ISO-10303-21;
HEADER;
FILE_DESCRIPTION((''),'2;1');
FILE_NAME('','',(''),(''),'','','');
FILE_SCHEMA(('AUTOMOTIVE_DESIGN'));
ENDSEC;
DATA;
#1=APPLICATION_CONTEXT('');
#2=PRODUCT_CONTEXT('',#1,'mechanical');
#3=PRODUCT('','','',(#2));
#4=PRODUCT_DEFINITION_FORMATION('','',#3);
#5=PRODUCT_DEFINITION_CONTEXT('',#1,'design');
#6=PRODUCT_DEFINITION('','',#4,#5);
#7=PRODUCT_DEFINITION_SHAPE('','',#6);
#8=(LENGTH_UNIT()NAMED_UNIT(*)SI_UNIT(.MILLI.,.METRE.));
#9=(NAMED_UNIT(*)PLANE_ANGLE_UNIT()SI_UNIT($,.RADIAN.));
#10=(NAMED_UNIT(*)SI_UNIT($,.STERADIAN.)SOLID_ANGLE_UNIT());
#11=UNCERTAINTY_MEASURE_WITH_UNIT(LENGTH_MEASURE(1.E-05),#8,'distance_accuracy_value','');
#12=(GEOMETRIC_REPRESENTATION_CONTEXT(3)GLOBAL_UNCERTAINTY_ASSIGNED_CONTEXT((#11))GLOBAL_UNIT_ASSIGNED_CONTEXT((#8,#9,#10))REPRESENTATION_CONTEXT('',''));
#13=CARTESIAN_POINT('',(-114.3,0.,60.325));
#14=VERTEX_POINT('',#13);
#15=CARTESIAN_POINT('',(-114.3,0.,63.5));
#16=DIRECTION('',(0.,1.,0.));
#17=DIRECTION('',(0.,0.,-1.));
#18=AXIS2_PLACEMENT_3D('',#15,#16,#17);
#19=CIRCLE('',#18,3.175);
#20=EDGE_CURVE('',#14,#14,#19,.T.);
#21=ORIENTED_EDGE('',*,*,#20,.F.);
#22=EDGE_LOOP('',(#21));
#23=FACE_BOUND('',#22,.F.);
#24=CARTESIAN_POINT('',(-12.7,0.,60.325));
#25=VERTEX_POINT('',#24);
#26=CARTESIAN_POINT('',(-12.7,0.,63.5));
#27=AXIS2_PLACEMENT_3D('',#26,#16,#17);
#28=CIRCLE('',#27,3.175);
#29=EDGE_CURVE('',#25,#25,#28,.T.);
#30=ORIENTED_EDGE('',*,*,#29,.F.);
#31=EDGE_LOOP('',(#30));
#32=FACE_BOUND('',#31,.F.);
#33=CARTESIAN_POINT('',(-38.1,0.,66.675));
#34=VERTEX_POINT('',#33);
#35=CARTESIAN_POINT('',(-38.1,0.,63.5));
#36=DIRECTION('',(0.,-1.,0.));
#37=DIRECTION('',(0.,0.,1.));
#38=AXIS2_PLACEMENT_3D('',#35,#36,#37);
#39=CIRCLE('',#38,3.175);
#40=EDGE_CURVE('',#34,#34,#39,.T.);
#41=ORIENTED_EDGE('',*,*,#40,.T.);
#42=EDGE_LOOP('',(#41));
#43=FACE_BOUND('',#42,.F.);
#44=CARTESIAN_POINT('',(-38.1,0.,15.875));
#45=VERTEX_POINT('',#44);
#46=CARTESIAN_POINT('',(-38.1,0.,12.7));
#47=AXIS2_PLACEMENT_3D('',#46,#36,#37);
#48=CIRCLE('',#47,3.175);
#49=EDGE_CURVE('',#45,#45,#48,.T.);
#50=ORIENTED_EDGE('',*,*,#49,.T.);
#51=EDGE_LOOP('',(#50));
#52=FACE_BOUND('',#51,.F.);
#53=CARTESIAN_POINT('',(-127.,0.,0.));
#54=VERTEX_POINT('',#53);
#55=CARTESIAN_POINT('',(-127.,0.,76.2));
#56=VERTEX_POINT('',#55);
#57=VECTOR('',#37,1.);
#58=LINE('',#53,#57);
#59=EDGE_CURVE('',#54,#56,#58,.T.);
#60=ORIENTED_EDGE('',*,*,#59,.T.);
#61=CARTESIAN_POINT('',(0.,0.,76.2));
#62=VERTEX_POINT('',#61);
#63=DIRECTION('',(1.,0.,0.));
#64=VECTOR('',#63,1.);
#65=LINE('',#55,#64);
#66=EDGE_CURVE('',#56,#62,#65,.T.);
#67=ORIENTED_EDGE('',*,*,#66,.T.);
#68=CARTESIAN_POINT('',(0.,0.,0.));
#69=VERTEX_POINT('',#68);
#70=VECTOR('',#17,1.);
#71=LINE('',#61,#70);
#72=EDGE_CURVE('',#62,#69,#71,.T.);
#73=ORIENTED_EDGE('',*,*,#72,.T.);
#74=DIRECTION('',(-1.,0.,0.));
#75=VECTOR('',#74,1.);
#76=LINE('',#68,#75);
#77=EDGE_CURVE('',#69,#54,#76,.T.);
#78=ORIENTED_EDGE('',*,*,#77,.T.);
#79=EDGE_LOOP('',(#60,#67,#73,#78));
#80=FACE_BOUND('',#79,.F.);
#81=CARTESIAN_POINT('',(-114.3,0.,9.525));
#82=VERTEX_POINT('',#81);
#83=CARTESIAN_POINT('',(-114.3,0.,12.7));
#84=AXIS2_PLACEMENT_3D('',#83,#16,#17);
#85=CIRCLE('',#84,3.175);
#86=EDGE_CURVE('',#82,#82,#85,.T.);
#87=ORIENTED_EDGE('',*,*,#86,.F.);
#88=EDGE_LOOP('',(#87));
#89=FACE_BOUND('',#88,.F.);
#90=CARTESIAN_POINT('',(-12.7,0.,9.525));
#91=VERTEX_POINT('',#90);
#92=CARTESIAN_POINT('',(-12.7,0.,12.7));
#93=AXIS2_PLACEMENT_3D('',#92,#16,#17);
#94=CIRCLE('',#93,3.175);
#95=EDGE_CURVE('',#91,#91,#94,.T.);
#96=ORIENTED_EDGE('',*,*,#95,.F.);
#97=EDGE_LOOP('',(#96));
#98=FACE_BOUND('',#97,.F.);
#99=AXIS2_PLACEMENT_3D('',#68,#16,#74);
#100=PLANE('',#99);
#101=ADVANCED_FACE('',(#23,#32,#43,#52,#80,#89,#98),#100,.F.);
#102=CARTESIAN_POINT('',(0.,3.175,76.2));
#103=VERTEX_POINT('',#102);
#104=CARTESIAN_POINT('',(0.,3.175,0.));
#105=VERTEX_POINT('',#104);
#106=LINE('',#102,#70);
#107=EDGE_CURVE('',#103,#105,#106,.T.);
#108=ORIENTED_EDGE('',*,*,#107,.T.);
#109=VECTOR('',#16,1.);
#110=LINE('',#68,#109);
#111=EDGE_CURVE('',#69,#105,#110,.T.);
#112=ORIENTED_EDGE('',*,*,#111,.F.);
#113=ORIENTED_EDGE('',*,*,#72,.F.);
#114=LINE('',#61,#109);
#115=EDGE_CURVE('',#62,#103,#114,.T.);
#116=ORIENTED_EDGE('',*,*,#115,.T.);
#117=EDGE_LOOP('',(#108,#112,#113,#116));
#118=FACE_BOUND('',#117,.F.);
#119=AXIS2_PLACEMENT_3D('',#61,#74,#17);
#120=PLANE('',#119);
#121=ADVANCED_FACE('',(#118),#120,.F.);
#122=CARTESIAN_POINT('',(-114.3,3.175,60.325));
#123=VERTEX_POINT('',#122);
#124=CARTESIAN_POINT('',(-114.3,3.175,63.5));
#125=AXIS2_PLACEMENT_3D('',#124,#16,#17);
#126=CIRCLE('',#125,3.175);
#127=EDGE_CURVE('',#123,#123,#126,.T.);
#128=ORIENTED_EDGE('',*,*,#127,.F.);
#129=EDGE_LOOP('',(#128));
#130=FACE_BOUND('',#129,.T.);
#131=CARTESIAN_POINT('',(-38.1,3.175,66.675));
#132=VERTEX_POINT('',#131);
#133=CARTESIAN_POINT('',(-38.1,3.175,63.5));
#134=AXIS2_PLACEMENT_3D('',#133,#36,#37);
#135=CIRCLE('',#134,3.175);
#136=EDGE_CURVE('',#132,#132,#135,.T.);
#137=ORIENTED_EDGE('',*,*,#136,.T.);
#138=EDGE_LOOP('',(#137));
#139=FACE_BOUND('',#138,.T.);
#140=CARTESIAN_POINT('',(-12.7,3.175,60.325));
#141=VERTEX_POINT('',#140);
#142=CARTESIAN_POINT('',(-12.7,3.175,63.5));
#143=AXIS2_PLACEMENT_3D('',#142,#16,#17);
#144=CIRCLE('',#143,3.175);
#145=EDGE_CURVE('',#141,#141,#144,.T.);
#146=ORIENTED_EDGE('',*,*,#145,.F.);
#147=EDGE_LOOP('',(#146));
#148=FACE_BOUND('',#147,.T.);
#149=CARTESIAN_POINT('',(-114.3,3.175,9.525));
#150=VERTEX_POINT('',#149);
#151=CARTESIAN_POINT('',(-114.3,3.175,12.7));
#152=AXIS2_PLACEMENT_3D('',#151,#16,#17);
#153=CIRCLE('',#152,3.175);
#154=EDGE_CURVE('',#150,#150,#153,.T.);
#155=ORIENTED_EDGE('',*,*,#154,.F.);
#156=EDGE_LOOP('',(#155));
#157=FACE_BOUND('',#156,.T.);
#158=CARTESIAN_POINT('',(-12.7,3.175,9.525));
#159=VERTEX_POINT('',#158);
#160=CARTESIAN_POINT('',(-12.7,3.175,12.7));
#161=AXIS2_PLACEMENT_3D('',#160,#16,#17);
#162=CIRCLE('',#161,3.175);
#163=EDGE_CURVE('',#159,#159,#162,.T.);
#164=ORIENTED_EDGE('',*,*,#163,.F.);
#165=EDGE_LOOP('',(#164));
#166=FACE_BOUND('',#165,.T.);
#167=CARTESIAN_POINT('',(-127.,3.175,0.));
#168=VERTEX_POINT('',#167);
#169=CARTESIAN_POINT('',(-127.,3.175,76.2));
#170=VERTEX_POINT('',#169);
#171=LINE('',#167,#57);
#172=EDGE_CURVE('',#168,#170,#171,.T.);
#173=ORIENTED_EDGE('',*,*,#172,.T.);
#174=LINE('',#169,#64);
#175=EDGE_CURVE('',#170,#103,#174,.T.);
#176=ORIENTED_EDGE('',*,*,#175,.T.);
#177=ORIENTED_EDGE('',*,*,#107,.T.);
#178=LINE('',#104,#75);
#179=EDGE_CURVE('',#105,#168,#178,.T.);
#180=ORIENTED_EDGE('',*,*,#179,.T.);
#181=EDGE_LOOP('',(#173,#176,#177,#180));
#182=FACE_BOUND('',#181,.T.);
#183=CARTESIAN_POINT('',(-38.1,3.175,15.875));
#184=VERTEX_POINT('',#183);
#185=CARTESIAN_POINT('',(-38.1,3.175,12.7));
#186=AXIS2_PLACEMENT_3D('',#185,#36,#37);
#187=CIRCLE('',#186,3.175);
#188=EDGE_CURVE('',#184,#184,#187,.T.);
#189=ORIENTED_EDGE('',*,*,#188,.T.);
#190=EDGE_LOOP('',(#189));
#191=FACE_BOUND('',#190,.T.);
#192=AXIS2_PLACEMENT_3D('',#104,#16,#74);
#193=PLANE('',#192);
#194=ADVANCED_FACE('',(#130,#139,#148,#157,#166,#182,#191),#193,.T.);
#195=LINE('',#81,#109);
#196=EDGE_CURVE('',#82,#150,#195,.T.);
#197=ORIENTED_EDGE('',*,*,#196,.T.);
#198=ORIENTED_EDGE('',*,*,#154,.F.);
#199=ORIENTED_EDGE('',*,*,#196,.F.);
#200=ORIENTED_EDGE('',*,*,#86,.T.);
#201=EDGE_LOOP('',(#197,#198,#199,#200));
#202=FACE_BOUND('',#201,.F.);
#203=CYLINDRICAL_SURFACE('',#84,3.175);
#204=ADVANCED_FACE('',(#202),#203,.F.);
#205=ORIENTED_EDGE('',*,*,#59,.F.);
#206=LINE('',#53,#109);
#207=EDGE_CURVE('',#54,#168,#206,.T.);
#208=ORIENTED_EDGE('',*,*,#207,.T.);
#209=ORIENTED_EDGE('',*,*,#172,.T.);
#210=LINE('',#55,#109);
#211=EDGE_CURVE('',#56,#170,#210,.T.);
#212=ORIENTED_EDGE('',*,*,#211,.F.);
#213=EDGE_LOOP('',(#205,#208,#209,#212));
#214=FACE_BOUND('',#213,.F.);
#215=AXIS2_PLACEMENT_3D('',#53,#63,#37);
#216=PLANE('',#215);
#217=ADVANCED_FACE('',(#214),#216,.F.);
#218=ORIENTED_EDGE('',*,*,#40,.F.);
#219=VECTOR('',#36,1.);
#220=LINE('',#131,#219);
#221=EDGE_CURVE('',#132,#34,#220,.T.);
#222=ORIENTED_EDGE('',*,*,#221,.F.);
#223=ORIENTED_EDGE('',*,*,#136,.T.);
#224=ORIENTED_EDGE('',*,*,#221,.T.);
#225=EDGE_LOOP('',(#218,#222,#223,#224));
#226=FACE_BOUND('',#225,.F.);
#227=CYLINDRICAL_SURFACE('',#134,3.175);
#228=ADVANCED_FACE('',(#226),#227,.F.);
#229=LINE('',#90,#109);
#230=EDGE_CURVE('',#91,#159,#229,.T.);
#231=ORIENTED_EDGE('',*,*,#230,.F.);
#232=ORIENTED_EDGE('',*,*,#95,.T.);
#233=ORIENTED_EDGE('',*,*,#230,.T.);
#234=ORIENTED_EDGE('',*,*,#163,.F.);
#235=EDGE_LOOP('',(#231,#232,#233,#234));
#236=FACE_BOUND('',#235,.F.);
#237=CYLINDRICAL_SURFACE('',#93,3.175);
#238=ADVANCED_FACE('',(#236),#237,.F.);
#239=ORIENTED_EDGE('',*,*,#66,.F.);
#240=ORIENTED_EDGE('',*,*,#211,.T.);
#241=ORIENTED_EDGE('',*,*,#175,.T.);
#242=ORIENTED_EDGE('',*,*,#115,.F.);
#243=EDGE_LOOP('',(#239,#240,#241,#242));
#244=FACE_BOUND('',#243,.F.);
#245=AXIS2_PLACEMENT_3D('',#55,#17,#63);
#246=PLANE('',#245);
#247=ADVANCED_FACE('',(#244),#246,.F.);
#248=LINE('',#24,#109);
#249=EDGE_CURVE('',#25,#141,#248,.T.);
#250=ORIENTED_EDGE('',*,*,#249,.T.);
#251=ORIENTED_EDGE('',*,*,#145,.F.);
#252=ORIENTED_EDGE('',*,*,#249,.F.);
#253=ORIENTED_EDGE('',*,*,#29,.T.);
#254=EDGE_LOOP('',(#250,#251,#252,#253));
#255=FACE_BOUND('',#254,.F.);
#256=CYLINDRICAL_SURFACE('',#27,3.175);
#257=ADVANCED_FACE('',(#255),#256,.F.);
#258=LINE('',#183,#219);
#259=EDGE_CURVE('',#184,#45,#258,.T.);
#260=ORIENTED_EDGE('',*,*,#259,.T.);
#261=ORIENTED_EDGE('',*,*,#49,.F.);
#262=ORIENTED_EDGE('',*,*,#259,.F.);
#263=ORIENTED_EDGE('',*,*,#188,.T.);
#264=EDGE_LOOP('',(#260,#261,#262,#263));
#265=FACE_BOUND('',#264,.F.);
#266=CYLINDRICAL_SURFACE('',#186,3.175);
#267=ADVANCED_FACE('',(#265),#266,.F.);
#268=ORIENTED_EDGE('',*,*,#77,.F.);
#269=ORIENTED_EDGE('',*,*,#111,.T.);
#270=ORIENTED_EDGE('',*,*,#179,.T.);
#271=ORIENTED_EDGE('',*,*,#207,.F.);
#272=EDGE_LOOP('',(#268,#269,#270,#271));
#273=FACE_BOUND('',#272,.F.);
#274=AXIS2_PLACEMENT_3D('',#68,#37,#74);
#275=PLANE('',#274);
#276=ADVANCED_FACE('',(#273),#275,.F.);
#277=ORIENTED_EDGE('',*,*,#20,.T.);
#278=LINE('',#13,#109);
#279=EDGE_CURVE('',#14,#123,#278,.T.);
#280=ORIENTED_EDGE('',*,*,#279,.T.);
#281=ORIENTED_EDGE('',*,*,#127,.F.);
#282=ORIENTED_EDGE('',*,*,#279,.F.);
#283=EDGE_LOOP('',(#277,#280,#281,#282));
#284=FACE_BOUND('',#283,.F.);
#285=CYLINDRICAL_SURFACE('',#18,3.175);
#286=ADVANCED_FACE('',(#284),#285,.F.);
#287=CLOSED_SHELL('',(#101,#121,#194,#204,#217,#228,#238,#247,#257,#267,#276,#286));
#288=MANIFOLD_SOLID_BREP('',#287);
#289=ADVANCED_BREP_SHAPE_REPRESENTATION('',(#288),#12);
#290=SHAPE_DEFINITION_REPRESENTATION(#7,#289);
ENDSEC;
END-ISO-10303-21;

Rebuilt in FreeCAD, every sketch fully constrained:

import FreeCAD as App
import Part
import Sketcher

V = App.Vector
Q = App.Units.Quantity


def add_polygon(sketch, points):
    """Adds a closed chain of lines whose ends are joined by coincident constraints."""
    first, n = sketch.GeometryCount, len(points)
    for a, b in zip(points, points[1:] + points[:1]):
        sketch.addGeometry(Part.LineSegment(App.Vector(*a, 0), App.Vector(*b, 0)), False)
    for i in range(n):
        sketch.addConstraint(Sketcher.Constraint("Coincident", first + i, 2, first + (i + 1) % n, 1))

doc = App.newDocument("Part")
body = doc.addObject("PartDesign::Body", "Body")

# Sketch on XZ plane
sketch1 = body.newObject("Sketcher::SketchObject", "Sketch")
sketch1.AttachmentSupport = (doc.getObject("XZ_Plane"), [""])
sketch1.MapMode = "FlatFace"
add_polygon(sketch1, [(0, 76), (0, 0), (-127, 0), (-127, 76)])  # lines 0-3
sketch1.addConstraint([
    Sketcher.Constraint("Vertical", 0),
    Sketcher.Constraint("Horizontal", 1),
    Sketcher.Constraint("Vertical", 2),
    Sketcher.Constraint("Horizontal", 3),
    Sketcher.Constraint("Coincident", 0, 2, -1, 1),
    Sketcher.Constraint("DistanceX", 1, 2, 1, 1, Q("5 in")),
    Sketcher.Constraint("DistanceY", 0, 2, 0, 1, Q("3 in")),
])
pad1 = body.newObject("PartDesign::Pad", "Pad")
pad1.Profile = sketch1
pad1.Length = Q("0.125 in")
pad1.Reversed = True

# Sketch on XZ plane
sketch2 = body.newObject("Sketcher::SketchObject", "Sketch001")
sketch2.AttachmentSupport = (doc.getObject("XZ_Plane"), [""])
sketch2.MapMode = "FlatFace"
sketch2.addGeometry([
    Part.Circle(V(-114.3, 63.5, 0), V(0, 0, 1), 3.2),
    Part.Circle(V(-12.7, 63.5, 0), V(0, 0, 1), 3.2),
    Part.Circle(V(-12.7, 12.7, 0), V(0, 0, 1), 3.2),
    Part.Circle(V(-114.3, 12.7, 0), V(0, 0, 1), 3.2),
], False)
sketch2.addConstraint([
    Sketcher.Constraint("Equal", 0, 1),
    Sketcher.Constraint("Equal", 1, 2),
    Sketcher.Constraint("Equal", 2, 3),
    Sketcher.Constraint("Horizontal", 0, 3, 1, 3),
    Sketcher.Constraint("Horizontal", 2, 3, 3, 3),
    Sketcher.Constraint("Vertical", 1, 3, 2, 3),
    Sketcher.Constraint("Vertical", 0, 3, 3, 3),
    Sketcher.Constraint("Diameter", 0, Q("0.25 in")),
    Sketcher.Constraint("DistanceX", 0, 3, 1, 3, Q("4 in")),
    Sketcher.Constraint("DistanceY", 2, 3, 1, 3, Q("2 in")),
    Sketcher.Constraint("DistanceX", 0, 3, -1, 1, Q("4.5 in")),
    Sketcher.Constraint("DistanceY", -1, 1, 0, 3, Q("2.5 in")),
])
doc.recompute()
hole = body.newObject("PartDesign::Hole", "Hole")
hole.Profile = sketch2
hole.ThreadType = "None"
hole.Diameter = Q("0.25 in")
hole.DepthType = "ThroughAll"

# Sketch on XZ plane
sketch3 = body.newObject("Sketcher::SketchObject", "Sketch002")
sketch3.AttachmentSupport = (doc.getObject("XZ_Plane"), [""])
sketch3.MapMode = "FlatFace"
sketch3.AttachmentOffset = App.Placement(V(0, 0, -0.125 * 25.4), App.Rotation())
sketch3.addGeometry([
    Part.Circle(V(-38.1, 63.5, 0), V(0, 0, 1), 3.2),
    Part.Circle(V(-38.1, 12.7, 0), V(0, 0, 1), 3.2),
], False)
sketch3.addConstraint([
    Sketcher.Constraint("Equal", 0, 1),
    Sketcher.Constraint("Vertical", 0, 3, 1, 3),
    Sketcher.Constraint("Diameter", 0, Q("0.25 in")),
    Sketcher.Constraint("DistanceY", 1, 3, 0, 3, Q("2 in")),
    Sketcher.Constraint("DistanceX", 0, 3, -1, 1, Q("1.5 in")),
    Sketcher.Constraint("DistanceY", -1, 1, 0, 3, Q("2.5 in")),
])
doc.recompute()
hole2 = body.newObject("PartDesign::Hole", "Hole001")
hole2.Profile = sketch3
hole2.ThreadType = "None"
hole2.Diameter = Q("0.25 in")
hole2.DepthType = "ThroughAll"
hole2.Reversed = True

doc.recompute()
